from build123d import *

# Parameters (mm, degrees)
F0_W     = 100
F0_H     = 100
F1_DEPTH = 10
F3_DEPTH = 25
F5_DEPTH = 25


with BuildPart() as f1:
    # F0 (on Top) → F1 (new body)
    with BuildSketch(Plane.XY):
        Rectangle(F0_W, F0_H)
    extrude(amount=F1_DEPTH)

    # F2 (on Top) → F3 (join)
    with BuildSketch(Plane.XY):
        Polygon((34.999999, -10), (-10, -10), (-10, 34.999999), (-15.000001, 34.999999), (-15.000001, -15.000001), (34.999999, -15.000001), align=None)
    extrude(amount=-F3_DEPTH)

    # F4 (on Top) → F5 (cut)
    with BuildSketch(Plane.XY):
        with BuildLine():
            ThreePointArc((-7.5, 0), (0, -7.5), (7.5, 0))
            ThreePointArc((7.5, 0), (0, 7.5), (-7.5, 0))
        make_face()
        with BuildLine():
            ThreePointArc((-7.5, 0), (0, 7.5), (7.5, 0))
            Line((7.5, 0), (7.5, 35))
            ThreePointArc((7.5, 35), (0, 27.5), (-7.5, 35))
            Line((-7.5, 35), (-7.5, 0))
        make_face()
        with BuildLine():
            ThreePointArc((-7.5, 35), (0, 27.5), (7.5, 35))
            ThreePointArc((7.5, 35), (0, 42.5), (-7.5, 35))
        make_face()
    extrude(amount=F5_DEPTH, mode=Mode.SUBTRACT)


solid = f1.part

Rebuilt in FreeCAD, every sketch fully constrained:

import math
import FreeCAD as App
import Part
import Sketcher
from FreeCAD import Vector


def add_polygon(sketch, points):
    """Adds a closed chain of lines whose ends are joined by coincident constraints."""
    first, n = sketch.GeometryCount, len(points)
    for a, b in zip(points, points[1:] + points[:1]):
        sketch.addGeometry(Part.LineSegment(App.Vector(*a, 0), App.Vector(*b, 0)), False)
    for i in range(n):
        sketch.addConstraint(Sketcher.Constraint("Coincident", first + i, 2, first + (i + 1) % n, 1))

doc = App.newDocument("Part")
body = doc.addObject("PartDesign::Body", "Body")

sketch1 = body.newObject("Sketcher::SketchObject", "Sketch")
sketch1.AttachmentSupport = (doc.getObject("XY_Plane"), [""])
sketch1.MapMode = "FlatFace"
add_polygon(sketch1, [(-50, 50), (-50, -50), (50, -50), (50, 50)])
sketch1.addConstraint(Sketcher.Constraint("Vertical", 0))
sketch1.addConstraint(Sketcher.Constraint("Horizontal", 1))
sketch1.addConstraint(Sketcher.Constraint("Vertical", 2))
sketch1.addConstraint(Sketcher.Constraint("Horizontal", 3))
sketch1.addConstraint(Sketcher.Constraint("Symmetric", 0, 2, 2, 2, -1, 1))
sketch1.addConstraint(Sketcher.Constraint("Equal", 3, 0))
sketch1.addConstraint(Sketcher.Constraint("DistanceX", 1, 1, 1, 2, 100.0))
pad1 = body.newObject("PartDesign::Pad", "Pad")
pad1.Profile = sketch1
pad1.Length = 10

sketch2 = body.newObject("Sketcher::SketchObject", "Sketch001")
sketch2.AttachmentSupport = (doc.getObject("XY_Plane"), [""])
sketch2.MapMode = "FlatFace"
add_polygon(sketch2, [(35, -10), (-10, -10), (-10, 35), (-15, 35), (-15, -15), (35, -15)])
sketch2.addConstraint(Sketcher.Constraint("Horizontal", 0))
sketch2.addConstraint(Sketcher.Constraint("Vertical", 1))
sketch2.addConstraint(Sketcher.Constraint("Horizontal", 2))
sketch2.addConstraint(Sketcher.Constraint("Vertical", 3))
sketch2.addConstraint(Sketcher.Constraint("Horizontal", 4))
sketch2.addConstraint(Sketcher.Constraint("Vertical", 5))
sketch2.addConstraint(Sketcher.Constraint("Equal", 0, 1))
sketch2.addConstraint(Sketcher.Constraint("Equal", 4, 3))
sketch2.addConstraint(Sketcher.Constraint("DistanceX", 0, 2, 0, 1, 44.999999))
sketch2.addConstraint(Sketcher.Constraint("DistanceX", 2, 2, 2, 1, 5.000001))
sketch2.addConstraint(Sketcher.Constraint("DistanceX", 0, 2, -1, 1, 10.0))
sketch2.addConstraint(Sketcher.Constraint("DistanceY", 0, 2, -1, 1, 10.0))
pad2 = body.newObject("PartDesign::Pad", "Pad001")
pad2.Profile = sketch2
pad2.Length = 25
pad2.Reversed = True

sketch3 = body.newObject("Sketcher::SketchObject", "Sketch002")
sketch3.AttachmentSupport = (doc.getObject("XY_Plane"), [""])
sketch3.MapMode = "FlatFace"
sketch3.addGeometry(Part.ArcOfCircle(Part.Circle(Vector(0, 0, 0), Vector(0, 0, 1), 8), math.radians(180), math.radians(360)), False)
sketch3.addGeometry(Part.LineSegment(Vector(8, 0, 0), Vector(8, 35, 0)), False)
sketch3.addGeometry(Part.ArcOfCircle(Part.Circle(Vector(0, 35, 0), Vector(0, 0, 1), 8), math.radians(0), math.radians(180)), False)
sketch3.addGeometry(Part.LineSegment(Vector(-8, 35, 0), Vector(-8, 0, 0)), False)
sketch3.addConstraint(Sketcher.Constraint("Tangent", 0, 2, 1, 1))
sketch3.addConstraint(Sketcher.Constraint("Tangent", 1, 2, 2, 1))
sketch3.addConstraint(Sketcher.Constraint("Tangent", 2, 2, 3, 1))
sketch3.addConstraint(Sketcher.Constraint("Tangent", 3, 2, 0, 1))
sketch3.addConstraint(Sketcher.Constraint("Vertical", 1))
sketch3.addConstraint(Sketcher.Constraint("Vertical", 3))
sketch3.addConstraint(Sketcher.Constraint("Coincident", 0, 3, -1, 1))
sketch3.addConstraint(Sketcher.Constraint("Radius", 0, 7.5))
sketch3.addConstraint(Sketcher.Constraint("DistanceY", 1, 1, 1, 2, 35.0))
pocket1 = body.newObject("PartDesign::Pocket", "Pocket")
pocket1.Profile = sketch3
pocket1.Length = 25
pocket1.Reversed = True

doc.recompute()
